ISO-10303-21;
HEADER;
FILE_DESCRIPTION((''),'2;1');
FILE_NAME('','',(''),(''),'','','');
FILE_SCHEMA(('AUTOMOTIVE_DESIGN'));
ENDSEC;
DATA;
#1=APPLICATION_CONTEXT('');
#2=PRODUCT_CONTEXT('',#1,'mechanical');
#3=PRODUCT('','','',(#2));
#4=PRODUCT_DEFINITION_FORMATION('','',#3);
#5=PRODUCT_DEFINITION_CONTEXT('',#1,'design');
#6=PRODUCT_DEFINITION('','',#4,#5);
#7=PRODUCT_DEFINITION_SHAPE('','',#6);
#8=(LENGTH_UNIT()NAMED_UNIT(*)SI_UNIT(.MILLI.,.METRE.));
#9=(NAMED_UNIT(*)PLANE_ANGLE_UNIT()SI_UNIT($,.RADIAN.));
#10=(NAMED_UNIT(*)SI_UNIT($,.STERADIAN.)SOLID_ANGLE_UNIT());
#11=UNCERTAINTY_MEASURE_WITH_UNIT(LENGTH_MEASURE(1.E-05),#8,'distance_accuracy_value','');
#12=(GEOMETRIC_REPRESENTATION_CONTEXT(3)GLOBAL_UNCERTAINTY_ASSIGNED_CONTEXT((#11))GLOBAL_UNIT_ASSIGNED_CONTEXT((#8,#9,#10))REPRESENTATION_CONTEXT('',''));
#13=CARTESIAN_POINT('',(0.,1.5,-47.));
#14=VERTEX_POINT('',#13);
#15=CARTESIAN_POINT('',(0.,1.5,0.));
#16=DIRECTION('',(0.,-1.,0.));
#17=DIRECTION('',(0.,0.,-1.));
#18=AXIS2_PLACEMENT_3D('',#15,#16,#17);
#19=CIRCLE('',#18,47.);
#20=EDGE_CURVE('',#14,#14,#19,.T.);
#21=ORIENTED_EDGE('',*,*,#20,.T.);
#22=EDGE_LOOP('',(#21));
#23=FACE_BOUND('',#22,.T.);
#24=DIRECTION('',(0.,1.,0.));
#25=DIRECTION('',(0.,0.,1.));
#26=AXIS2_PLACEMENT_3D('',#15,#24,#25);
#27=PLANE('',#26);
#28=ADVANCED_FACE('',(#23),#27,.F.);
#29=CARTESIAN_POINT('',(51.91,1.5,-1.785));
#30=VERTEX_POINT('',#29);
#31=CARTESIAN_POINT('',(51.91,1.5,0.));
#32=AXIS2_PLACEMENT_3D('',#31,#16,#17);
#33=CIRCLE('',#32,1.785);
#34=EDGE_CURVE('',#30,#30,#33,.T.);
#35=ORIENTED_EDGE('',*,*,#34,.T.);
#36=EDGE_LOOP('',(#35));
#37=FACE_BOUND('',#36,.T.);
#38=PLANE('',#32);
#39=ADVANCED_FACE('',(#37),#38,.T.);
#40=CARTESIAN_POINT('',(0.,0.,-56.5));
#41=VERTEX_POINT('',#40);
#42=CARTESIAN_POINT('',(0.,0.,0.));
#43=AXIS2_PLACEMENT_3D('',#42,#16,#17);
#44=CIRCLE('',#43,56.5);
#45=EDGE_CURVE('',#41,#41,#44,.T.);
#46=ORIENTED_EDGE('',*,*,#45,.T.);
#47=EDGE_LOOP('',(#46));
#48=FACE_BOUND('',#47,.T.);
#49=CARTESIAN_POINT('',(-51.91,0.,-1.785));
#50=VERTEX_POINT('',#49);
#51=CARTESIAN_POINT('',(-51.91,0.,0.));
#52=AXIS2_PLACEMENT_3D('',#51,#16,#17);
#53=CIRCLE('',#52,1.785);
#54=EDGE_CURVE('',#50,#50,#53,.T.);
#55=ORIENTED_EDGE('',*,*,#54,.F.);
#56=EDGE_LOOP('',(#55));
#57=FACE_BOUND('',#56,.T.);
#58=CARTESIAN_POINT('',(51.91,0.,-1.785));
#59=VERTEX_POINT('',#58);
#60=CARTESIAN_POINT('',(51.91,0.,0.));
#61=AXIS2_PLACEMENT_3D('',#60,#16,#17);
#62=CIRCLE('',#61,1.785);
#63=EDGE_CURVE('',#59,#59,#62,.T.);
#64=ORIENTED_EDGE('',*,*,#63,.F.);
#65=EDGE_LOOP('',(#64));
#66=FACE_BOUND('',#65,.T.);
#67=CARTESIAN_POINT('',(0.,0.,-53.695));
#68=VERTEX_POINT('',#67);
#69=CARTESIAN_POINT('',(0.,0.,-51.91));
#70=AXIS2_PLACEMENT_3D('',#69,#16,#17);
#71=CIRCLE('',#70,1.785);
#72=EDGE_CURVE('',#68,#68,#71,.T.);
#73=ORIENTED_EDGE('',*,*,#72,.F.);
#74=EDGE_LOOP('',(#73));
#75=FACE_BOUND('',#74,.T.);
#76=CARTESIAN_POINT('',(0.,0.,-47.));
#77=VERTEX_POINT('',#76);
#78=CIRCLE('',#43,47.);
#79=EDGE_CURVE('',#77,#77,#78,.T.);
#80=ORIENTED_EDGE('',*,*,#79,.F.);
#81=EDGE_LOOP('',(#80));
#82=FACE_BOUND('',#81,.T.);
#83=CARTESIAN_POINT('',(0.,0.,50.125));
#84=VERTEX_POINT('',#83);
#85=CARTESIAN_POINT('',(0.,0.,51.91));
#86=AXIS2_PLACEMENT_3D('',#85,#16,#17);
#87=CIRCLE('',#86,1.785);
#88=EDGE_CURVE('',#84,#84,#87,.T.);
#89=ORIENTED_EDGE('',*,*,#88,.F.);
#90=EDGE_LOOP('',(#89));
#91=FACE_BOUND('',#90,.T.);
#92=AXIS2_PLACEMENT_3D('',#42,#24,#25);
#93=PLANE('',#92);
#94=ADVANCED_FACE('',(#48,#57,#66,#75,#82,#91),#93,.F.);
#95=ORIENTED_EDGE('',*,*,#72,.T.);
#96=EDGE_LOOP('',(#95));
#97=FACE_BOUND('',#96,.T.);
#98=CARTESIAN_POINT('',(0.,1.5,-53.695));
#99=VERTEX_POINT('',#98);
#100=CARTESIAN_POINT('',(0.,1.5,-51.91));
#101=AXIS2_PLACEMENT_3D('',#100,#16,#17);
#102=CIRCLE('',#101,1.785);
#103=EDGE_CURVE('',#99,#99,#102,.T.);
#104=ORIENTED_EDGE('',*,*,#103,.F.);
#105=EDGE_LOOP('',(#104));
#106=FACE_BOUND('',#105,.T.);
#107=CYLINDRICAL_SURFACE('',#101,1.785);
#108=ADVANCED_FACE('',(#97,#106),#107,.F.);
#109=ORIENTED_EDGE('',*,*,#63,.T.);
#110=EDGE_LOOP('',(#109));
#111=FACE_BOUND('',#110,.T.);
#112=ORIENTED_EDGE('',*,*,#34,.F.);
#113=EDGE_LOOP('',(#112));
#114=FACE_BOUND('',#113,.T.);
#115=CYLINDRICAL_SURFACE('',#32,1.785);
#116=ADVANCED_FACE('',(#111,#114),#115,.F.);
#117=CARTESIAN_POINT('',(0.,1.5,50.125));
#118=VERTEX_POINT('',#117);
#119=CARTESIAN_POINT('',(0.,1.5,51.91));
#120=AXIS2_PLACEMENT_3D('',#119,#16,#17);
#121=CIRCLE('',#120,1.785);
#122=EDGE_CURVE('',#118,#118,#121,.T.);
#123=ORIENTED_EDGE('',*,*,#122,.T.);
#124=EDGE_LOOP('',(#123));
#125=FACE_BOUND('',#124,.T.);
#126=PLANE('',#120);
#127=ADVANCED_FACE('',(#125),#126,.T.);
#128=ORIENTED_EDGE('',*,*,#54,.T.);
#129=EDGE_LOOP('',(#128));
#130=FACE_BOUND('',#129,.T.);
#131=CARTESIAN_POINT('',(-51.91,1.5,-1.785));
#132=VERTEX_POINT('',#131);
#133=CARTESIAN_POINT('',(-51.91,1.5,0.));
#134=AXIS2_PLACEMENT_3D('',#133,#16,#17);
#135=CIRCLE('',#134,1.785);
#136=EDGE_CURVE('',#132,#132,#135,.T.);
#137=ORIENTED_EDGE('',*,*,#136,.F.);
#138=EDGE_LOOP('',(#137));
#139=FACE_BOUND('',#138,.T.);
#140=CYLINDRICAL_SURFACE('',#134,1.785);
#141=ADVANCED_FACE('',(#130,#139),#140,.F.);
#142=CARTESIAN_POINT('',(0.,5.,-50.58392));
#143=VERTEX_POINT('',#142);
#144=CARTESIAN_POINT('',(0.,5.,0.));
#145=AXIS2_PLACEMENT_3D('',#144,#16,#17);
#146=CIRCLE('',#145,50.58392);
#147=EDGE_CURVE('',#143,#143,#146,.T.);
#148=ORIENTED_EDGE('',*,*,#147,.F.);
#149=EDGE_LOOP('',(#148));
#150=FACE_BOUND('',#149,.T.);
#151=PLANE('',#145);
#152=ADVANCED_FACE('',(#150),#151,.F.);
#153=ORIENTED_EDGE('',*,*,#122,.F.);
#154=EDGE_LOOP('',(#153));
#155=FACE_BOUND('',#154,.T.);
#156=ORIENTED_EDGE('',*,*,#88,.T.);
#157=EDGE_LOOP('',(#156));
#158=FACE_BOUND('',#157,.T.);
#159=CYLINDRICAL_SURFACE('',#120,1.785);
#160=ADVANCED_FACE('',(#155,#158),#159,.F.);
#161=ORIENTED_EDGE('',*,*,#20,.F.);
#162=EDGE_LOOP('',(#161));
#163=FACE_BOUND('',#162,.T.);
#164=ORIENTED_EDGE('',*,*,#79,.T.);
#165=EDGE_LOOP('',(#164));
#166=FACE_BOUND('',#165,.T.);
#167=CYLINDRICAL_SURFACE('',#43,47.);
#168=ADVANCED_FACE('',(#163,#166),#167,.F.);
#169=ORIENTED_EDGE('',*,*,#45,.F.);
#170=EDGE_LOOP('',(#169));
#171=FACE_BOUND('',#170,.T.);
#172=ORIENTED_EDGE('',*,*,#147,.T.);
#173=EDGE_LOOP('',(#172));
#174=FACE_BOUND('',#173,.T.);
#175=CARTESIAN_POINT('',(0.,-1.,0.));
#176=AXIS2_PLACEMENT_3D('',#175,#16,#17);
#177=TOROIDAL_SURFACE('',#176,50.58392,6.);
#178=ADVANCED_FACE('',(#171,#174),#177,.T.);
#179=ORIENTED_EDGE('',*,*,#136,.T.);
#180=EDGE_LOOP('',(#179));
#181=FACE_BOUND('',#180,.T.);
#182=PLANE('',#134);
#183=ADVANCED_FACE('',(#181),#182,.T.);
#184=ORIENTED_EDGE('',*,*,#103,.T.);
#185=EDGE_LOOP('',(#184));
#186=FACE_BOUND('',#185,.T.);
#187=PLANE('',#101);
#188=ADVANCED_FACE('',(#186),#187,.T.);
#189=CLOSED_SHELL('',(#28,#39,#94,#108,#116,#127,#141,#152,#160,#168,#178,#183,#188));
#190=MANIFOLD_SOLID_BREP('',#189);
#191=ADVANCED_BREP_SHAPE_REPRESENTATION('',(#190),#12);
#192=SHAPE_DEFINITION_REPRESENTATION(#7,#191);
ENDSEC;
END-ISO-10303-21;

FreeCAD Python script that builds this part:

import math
import FreeCAD as App
import Part
import Sketcher

V = App.Vector

doc = App.newDocument("Part")
body = doc.addObject("PartDesign::Body", "Body")

# Sketch on XY plane
sketch1 = body.newObject("Sketcher::SketchObject", "Sketch")
sketch1.AttachmentSupport = (doc.getObject("XY_Plane"), [""])
sketch1.MapMode = "FlatFace"
sketch1.addGeometry([
    Part.LineSegment(V(50.6, 5, 0), V(0, 5, 0)),  # 0
    Part.LineSegment(V(0, 5, 0), V(0, 1.5, 0)),  # 1
    Part.LineSegment(V(0, 1.5, 0), V(47, 1.5, 0)),  # 2
    Part.LineSegment(V(47, 1.5, 0), V(47, 0, 0)),  # 3
    Part.LineSegment(V(47, 0, 0), V(56.5, 0, 0)),  # 4
    Part.ArcOfCircle(Part.Circle(V(50.6, -1, 0), V(0, 0, 1), 6), math.radians(10), math.radians(90)),  # 5
], False)
sketch1.addConstraint([
    Sketcher.Constraint("Coincident", 0, 2, 1, 1),
    Sketcher.Constraint("Coincident", 1, 2, 2, 1),
    Sketcher.Constraint("Coincident", 2, 2, 3, 1),
    Sketcher.Constraint("Coincident", 3, 2, 4, 1),
    Sketcher.Constraint("Coincident", 4, 2, 5, 1),
    Sketcher.Constraint("Tangent", 5, 2, 0, 1),
    Sketcher.Constraint("Horizontal", 0),
    Sketcher.Constraint("Vertical", 1),
    Sketcher.Constraint("Horizontal", 2),
    Sketcher.Constraint("Vertical", 3),
    Sketcher.Constraint("Horizontal", 4),
    Sketcher.Constraint("PointOnObject", 0, 2, -2),
    Sketcher.Constraint("PointOnObject", 3, 2, -1),
    Sketcher.Constraint("Radius", 5, 6.0),
    Sketcher.Constraint("DistanceX", 2, 1, 2, 2, 47.0),
    Sketcher.Constraint("DistanceX", 4, 1, 4, 2, 9.5),
    Sketcher.Constraint("DistanceY", 1, 2, 1, 1, 3.5),
    Sketcher.Constraint("DistanceY", 3, 2, 3, 1, 1.5),
])
revolution = body.newObject("PartDesign::Revolution", "Revolution")
revolution.Profile = sketch1
revolution.ReferenceAxis = (sketch1, ["V_Axis"])
revolution.Angle = 360

# Sketch on XZ plane
sketch2 = body.newObject("Sketcher::SketchObject", "Sketch001")
sketch2.AttachmentSupport = (doc.getObject("XZ_Plane"), [""])
sketch2.MapMode = "FlatFace"
sketch2.addGeometry([
    Part.Circle(V(0, 51.9, 0), V(0, 0, 1), 1.8),
    Part.Circle(V(51.9, 0, 0), V(0, 0, 1), 1.8),
    Part.Circle(V(0, -51.9, 0), V(0, 0, 1), 1.8),
    Part.Circle(V(-51.9, 0, 0), V(0, 0, 1), 1.8),
], False)
sketch2.addConstraint([
    Sketcher.Constraint("Equal", 0, 1),
    Sketcher.Constraint("Equal", 1, 2),
    Sketcher.Constraint("Equal", 2, 3),
    Sketcher.Constraint("Symmetric", 0, 3, 2, 3, -1, 1),
    Sketcher.Constraint("Symmetric", 1, 3, 3, 3, -1, 1),
    Sketcher.Constraint("PointOnObject", 0, 3, -2),
    Sketcher.Constraint("PointOnObject", 1, 3, -1),
    Sketcher.Constraint("Diameter", 0, 3.57),
    Sketcher.Constraint("DistanceY", -1, 1, 0, 3, 51.91),
    Sketcher.Constraint("DistanceX", -1, 1, 1, 3, 51.91),
])
pocket1 = body.newObject("PartDesign::Pocket", "Pocket")
pocket1.Profile = sketch2
pocket1.Length = 1.5

doc.recompute()
